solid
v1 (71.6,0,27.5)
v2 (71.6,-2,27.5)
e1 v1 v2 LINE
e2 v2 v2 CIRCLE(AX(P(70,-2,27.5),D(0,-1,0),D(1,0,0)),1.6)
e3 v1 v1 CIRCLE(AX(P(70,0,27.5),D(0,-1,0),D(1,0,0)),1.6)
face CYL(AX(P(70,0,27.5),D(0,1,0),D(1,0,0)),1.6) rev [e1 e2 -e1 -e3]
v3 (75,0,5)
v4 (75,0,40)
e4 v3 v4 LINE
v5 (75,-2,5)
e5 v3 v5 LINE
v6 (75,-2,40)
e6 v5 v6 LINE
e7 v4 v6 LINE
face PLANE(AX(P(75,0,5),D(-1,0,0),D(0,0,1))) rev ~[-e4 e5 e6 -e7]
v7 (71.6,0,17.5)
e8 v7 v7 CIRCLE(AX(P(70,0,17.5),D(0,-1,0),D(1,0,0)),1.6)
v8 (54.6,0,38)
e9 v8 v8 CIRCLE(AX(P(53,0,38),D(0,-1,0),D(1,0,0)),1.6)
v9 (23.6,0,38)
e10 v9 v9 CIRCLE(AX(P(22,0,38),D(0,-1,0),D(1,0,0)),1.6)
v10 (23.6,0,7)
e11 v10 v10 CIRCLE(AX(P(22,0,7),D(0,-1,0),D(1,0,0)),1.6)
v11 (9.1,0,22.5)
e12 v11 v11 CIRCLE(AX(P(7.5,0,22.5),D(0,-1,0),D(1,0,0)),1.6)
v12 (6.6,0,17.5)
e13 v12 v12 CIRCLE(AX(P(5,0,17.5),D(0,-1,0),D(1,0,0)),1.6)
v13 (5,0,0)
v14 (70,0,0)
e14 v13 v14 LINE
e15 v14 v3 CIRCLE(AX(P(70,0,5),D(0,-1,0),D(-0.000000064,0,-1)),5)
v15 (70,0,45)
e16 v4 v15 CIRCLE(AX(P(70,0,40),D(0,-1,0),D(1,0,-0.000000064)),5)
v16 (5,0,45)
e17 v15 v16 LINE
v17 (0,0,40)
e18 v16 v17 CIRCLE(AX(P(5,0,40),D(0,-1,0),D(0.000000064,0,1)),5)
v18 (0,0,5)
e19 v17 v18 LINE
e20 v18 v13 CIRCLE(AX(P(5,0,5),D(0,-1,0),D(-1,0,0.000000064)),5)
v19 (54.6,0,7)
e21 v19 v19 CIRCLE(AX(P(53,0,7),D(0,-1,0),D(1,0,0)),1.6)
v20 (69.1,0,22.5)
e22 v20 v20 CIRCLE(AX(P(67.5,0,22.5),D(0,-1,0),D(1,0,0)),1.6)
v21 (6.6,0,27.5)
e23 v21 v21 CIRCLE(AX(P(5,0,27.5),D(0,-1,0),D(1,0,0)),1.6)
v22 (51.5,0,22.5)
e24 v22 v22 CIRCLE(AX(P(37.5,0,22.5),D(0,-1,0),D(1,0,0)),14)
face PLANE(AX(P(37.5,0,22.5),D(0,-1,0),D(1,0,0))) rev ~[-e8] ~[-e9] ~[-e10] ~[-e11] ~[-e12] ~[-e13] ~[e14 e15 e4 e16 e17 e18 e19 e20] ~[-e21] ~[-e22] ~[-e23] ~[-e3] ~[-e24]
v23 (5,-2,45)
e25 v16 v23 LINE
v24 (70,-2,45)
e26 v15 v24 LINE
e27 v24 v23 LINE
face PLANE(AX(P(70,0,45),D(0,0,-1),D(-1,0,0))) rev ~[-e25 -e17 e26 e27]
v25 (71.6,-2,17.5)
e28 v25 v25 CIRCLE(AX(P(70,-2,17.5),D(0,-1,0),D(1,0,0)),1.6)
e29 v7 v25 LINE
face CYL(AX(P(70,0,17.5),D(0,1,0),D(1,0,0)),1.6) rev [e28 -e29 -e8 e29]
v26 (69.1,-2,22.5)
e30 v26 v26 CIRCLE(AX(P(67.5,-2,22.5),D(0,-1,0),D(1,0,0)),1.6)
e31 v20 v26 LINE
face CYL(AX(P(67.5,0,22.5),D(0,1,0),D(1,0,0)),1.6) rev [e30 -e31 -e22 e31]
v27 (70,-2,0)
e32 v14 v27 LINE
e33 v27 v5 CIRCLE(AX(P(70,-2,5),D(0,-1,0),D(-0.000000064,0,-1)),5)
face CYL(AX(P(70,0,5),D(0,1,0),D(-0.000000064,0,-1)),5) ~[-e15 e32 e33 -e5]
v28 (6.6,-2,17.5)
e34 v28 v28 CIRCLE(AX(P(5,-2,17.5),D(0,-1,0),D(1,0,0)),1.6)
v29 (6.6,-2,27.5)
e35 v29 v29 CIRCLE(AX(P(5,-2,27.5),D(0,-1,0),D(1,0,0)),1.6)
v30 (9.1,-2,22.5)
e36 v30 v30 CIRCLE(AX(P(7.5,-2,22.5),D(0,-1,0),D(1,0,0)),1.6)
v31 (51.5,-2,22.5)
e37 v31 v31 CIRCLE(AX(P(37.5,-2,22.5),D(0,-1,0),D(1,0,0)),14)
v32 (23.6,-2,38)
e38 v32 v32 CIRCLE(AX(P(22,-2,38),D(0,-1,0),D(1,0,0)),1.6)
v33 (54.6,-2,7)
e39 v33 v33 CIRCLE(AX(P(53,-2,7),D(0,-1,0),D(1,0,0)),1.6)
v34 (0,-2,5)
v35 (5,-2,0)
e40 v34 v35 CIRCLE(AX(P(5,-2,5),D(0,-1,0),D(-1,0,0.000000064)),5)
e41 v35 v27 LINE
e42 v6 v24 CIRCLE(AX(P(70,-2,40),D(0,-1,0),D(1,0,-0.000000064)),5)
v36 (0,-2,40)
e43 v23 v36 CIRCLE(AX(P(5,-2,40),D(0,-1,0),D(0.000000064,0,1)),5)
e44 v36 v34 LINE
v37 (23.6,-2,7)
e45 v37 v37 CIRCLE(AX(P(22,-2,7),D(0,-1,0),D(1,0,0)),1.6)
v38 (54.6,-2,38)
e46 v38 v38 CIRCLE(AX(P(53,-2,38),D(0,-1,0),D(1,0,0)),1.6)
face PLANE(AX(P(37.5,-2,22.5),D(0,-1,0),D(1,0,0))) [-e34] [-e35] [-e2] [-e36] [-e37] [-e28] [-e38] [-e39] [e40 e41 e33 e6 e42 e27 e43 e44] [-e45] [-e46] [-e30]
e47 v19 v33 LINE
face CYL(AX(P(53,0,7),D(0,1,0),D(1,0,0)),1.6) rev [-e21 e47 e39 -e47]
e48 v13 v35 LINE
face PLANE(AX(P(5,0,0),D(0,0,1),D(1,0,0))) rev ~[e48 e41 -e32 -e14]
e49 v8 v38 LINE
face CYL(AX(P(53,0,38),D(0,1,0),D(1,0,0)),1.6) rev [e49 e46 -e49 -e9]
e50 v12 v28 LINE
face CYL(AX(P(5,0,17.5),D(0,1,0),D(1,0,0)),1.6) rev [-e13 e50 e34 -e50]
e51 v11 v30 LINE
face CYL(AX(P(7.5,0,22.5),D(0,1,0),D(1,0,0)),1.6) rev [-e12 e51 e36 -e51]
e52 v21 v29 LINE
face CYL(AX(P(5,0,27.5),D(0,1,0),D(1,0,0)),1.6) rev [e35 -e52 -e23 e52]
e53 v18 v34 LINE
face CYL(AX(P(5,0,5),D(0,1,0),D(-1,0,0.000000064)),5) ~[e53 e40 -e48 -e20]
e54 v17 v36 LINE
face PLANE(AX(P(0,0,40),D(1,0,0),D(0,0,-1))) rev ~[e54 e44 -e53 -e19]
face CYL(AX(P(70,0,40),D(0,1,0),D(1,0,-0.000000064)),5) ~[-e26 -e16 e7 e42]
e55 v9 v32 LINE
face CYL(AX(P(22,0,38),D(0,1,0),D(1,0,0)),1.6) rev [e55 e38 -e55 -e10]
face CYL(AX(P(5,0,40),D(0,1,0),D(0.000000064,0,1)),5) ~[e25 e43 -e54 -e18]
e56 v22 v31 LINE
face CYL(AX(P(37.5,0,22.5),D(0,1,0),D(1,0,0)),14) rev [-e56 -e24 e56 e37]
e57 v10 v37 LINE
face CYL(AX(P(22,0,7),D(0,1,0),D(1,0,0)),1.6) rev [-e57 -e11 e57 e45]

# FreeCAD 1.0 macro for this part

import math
import FreeCAD as App
import Part
import Sketcher
from FreeCAD import Vector

doc = App.newDocument("Part")
body = doc.addObject("PartDesign::Body", "Body")

# Sketch on XZ plane
sketch1 = body.newObject("Sketcher::SketchObject", "Sketch")
sketch1.AttachmentSupport = (doc.getObject("XZ_Plane"), [""])
sketch1.MapMode = "FlatFace"
sketch1.addGeometry([
    Part.ArcOfCircle(Part.Circle(Vector(5, 5, 0), Vector(0, 0, 1), 5), math.radians(180), math.radians(270)),  # 0
    Part.LineSegment(Vector(5, 0, 0), Vector(70, 0, 0)),  # 1
    Part.ArcOfCircle(Part.Circle(Vector(70, 5, 0), Vector(0, 0, 1), 5), math.radians(-90), math.radians(0)),  # 2
    Part.LineSegment(Vector(75, 5, 0), Vector(75, 40, 0)),  # 3
    Part.ArcOfCircle(Part.Circle(Vector(70, 40, 0), Vector(0, 0, 1), 5), math.radians(0), math.radians(90)),  # 4
    Part.LineSegment(Vector(70, 45, 0), Vector(5, 45, 0)),  # 5
    Part.ArcOfCircle(Part.Circle(Vector(5, 40, 0), Vector(0, 0, 1), 5), math.radians(90), math.radians(180)),  # 6
    Part.LineSegment(Vector(0, 40, 0), Vector(0, 5, 0)),  # 7
    Part.Circle(Vector(22, 7, 0), Vector(0, 0, 1), 1.6),  # 8
    Part.Circle(Vector(5, 17.5, 0), Vector(0, 0, 1), 1.6),  # 9
    Part.Circle(Vector(53, 7, 0), Vector(0, 0, 1), 1.6),  # 10
    Part.Circle(Vector(70, 17.5, 0), Vector(0, 0, 1), 1.6),  # 11
    Part.Circle(Vector(7.5, 22.5, 0), Vector(0, 0, 1), 1.6),  # 12
    Part.Circle(Vector(5, 27.5, 0), Vector(0, 0, 1), 1.6),  # 13
    Part.Circle(Vector(22, 38, 0), Vector(0, 0, 1), 1.6),  # 14
    Part.Circle(Vector(37.5, 22.5, 0), Vector(0, 0, 1), 14),  # 15
    Part.Circle(Vector(67.5, 22.5, 0), Vector(0, 0, 1), 1.6),  # 16
    Part.Circle(Vector(70, 27.5, 0), Vector(0, 0, 1), 1.6),  # 17
    Part.Circle(Vector(53, 38, 0), Vector(0, 0, 1), 1.6),  # 18
], False)
sketch1.addConstraint([
    Sketcher.Constraint("Tangent", 0, 2, 1, 1),
    Sketcher.Constraint("Tangent", 1, 2, 2, 1),
    Sketcher.Constraint("Tangent", 2, 2, 3, 1),
    Sketcher.Constraint("Tangent", 3, 2, 4, 1),
    Sketcher.Constraint("Tangent", 4, 2, 5, 1),
    Sketcher.Constraint("Tangent", 5, 2, 6, 1),
    Sketcher.Constraint("Tangent", 6, 2, 7, 1),
    Sketcher.Constraint("Tangent", 7, 2, 0, 1),
    Sketcher.Constraint("Horizontal", 1),
    Sketcher.Constraint("Vertical", 3),
    Sketcher.Constraint("Horizontal", 5),
    Sketcher.Constraint("Vertical", 7),
    Sketcher.Constraint("Equal", 0, 2),
    Sketcher.Constraint("Equal", 2, 4),
    Sketcher.Constraint("Equal", 4, 6),
    Sketcher.Constraint("Equal", 8, 9),
    Sketcher.Constraint("Equal", 9, 10),
    Sketcher.Constraint("Equal", 10, 11),
    Sketcher.Constraint("Equal", 11, 12),
    Sketcher.Constraint("Equal", 12, 13),
    Sketcher.Constraint("Equal", 13, 14),
    Sketcher.Constraint("Equal", 14, 16),
    Sketcher.Constraint("Equal", 16, 17),
    Sketcher.Constraint("Equal", 17, 18),
    Sketcher.Constraint("PointOnObject", 0, 2, -1),
    Sketcher.Constraint("PointOnObject", 6, 2, -2),
    Sketcher.Constraint("Horizontal", 8, 3, 10, 3),
    Sketcher.Constraint("Horizontal", 9, 3, 11, 3),
    Sketcher.Constraint("Horizontal", 12, 3, 15, 3),
    Sketcher.Constraint("Horizontal", 15, 3, 16, 3),
    Sketcher.Constraint("Horizontal", 13, 3, 17, 3),
    Sketcher.Constraint("Horizontal", 14, 3, 18, 3),
    Sketcher.Constraint("Vertical", 6, 3, 9, 3),
    Sketcher.Constraint("Vertical", 4, 3, 11, 3),
    Sketcher.Constraint("Vertical", 9, 3, 13, 3),
    Sketcher.Constraint("Vertical", 8, 3, 14, 3),
    Sketcher.Constraint("Vertical", 11, 3, 17, 3),
    Sketcher.Constraint("Vertical", 10, 3, 18, 3),
    Sketcher.Constraint("Diameter", 15, 28.0),
    Sketcher.Constraint("Radius", 0, 5.0),
    Sketcher.Constraint("Diameter", 8, 3.2),
    Sketcher.Constraint("DistanceX", 1, 1, 1, 2, 65.0),
    Sketcher.Constraint("DistanceY", 3, 1, 3, 2, 35.0),
    Sketcher.Constraint("DistanceX", -1, 1, 8, 3, 22.0),
    Sketcher.Constraint("DistanceY", -1, 1, 8, 3, 7.0),
    Sketcher.Constraint("DistanceX", -1, 1, 10, 3, 53.0),
    Sketcher.Constraint("DistanceY", -1, 1, 14, 3, 38.0),
    Sketcher.Constraint("DistanceY", 9, 3, 12, 3, 5.0),
    Sketcher.Constraint("DistanceY", 12, 3, 13, 3, 5.0),
    Sketcher.Constraint("DistanceX", 12, 3, 15, 3, 30.0),
    Sketcher.Constraint("DistanceX", 15, 3, 16, 3, 30.0),
    Sketcher.Constraint("DistanceY", -1, 1, 9, 3, 17.5),
    Sketcher.Constraint("DistanceX", -1, 1, 12, 3, 7.5),
])
pad1 = body.newObject("PartDesign::Pad", "Pad")
pad1.Profile = sketch1
pad1.Length = 2

doc.recompute()
